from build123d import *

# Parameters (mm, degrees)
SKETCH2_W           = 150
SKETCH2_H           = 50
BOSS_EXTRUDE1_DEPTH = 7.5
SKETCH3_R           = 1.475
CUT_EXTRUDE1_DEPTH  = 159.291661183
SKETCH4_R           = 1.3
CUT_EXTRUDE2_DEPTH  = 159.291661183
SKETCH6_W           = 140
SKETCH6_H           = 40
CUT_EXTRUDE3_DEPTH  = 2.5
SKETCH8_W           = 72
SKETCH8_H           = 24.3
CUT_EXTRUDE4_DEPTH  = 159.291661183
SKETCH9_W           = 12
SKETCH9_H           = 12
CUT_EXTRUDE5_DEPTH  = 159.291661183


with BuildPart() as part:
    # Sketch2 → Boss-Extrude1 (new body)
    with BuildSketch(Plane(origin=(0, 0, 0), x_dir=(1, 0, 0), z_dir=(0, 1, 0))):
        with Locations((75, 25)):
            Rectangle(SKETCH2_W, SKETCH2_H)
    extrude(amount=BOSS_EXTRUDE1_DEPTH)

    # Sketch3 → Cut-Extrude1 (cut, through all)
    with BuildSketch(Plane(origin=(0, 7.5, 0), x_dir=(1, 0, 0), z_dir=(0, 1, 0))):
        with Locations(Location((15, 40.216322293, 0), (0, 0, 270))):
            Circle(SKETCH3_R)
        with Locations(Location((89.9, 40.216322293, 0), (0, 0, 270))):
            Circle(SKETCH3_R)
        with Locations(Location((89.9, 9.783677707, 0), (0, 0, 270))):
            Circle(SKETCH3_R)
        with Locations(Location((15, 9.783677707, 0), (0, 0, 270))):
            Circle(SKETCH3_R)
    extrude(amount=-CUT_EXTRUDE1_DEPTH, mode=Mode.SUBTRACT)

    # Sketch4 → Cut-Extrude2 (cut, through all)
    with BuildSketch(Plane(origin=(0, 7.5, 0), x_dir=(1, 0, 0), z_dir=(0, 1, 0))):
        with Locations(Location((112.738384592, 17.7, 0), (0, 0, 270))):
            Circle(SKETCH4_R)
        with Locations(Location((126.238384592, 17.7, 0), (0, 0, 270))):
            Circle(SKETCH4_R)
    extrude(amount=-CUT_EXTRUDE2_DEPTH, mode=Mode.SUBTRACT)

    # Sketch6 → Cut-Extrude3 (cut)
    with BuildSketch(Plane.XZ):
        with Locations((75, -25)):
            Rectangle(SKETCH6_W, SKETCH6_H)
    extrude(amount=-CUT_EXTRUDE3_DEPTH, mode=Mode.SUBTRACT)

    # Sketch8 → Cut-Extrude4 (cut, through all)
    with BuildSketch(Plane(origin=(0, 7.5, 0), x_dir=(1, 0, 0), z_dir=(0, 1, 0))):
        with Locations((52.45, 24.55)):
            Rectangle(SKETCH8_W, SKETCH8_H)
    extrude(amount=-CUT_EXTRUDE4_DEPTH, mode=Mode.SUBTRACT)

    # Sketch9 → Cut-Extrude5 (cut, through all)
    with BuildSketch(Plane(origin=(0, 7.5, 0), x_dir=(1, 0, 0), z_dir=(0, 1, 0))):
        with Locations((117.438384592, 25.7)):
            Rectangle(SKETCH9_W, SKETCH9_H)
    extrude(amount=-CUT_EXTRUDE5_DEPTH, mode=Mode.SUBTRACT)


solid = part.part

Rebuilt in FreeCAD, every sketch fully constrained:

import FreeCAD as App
import Part
import Sketcher

V = App.Vector
Q = App.Units.Quantity

doc = App.newDocument("Part")
body = doc.addObject("PartDesign::Body", "Body")

# Sketch on XZ plane
sketch1 = doc.addObject("Sketcher::SketchObject", "Sketch")
body.addObject(sketch1)
sketch1.AttachmentSupport = (doc.XZ_Plane, [""])
sketch1.MapMode = "FlatFace"
sketch1.addGeometry(Part.LineSegment(V(0, -50, 0), V(0, 0, 0)), False)
sketch1.addGeometry(Part.LineSegment(V(0, 0, 0), V(150, 0, 0)), False)
sketch1.addGeometry(Part.LineSegment(V(150, 0, 0), V(150, -50, 0)), False)
sketch1.addGeometry(Part.LineSegment(V(150, -50, 0), V(0, -50, 0)), False)
sketch1.addConstraint(Sketcher.Constraint("Coincident", 0, 2, 1, 1))
sketch1.addConstraint(Sketcher.Constraint("Coincident", 1, 2, 2, 1))
sketch1.addConstraint(Sketcher.Constraint("Coincident", 2, 2, 3, 1))
sketch1.addConstraint(Sketcher.Constraint("Coincident", 3, 2, 0, 1))
sketch1.addConstraint(Sketcher.Constraint("Vertical", 0))
sketch1.addConstraint(Sketcher.Constraint("Horizontal", 1))
sketch1.addConstraint(Sketcher.Constraint("Vertical", 2))
sketch1.addConstraint(Sketcher.Constraint("Horizontal", 3))
sketch1.addConstraint(Sketcher.Constraint("Coincident", 0, 2, -1, 1))
sketch1.addConstraint(Sketcher.Constraint("DistanceX", 1, 1, 1, 2, Q("150 mm")))
sketch1.addConstraint(Sketcher.Constraint("DistanceY", 0, 1, 0, 2, Q("50 mm")))
pad1 = doc.addObject("PartDesign::Pad", "Pad")
body.addObject(pad1)
pad1.Profile = sketch1
pad1.Length = 7.5
pad1.Reversed = True

# Sketch on XZ plane
sketch2 = doc.addObject("Sketcher::SketchObject", "Sketch001")
body.addObject(sketch2)
sketch2.AttachmentSupport = (doc.XZ_Plane, [""])
sketch2.MapMode = "FlatFace"
sketch2.AttachmentOffset = App.Placement(V(0, 0, -7.5), App.Rotation())
sketch2.addGeometry(Part.Circle(V(15, -40.2, 0), V(0, 0, 1), 1.5), False)
sketch2.addGeometry(Part.Circle(V(89.9, -40.2, 0), V(0, 0, 1), 1.5), False)
sketch2.addGeometry(Part.Circle(V(89.9, -9.8, 0), V(0, 0, 1), 1.5), False)
sketch2.addGeometry(Part.Circle(V(15, -9.8, 0), V(0, 0, 1), 1.5), False)
sketch2.addConstraint(Sketcher.Constraint("Equal", 0, 1))
sketch2.addConstraint(Sketcher.Constraint("Equal", 1, 2))
sketch2.addConstraint(Sketcher.Constraint("Equal", 2, 3))
sketch2.addConstraint(Sketcher.Constraint("Horizontal", 0, 3, 1, 3))
sketch2.addConstraint(Sketcher.Constraint("Horizontal", 2, 3, 3, 3))
sketch2.addConstraint(Sketcher.Constraint("Vertical", 1, 3, 2, 3))
sketch2.addConstraint(Sketcher.Constraint("Vertical", 0, 3, 3, 3))
sketch2.addConstraint(Sketcher.Constraint("Diameter", 0, Q("2.95 mm")))
sketch2.addConstraint(Sketcher.Constraint("DistanceX", -1, 1, 0, 3, Q("15 mm")))
sketch2.addConstraint(Sketcher.Constraint("DistanceX", -1, 1, 1, 3, Q("89.9 mm")))
sketch2.addConstraint(Sketcher.Constraint("DistanceY", 0, 3, -1, 1, Q("40.216322 mm")))
sketch2.addConstraint(Sketcher.Constraint("DistanceY", 2, 3, -1, 1, Q("9.783678 mm")))
pocket1 = doc.addObject("PartDesign::Pocket", "Pocket")
body.addObject(pocket1)
pocket1.Profile = sketch2
pocket1.Type = "ThroughAll"
pocket1.Reversed = True

# Sketch on XZ plane
sketch3 = doc.addObject("Sketcher::SketchObject", "Sketch002")
body.addObject(sketch3)
sketch3.AttachmentSupport = (doc.XZ_Plane, [""])
sketch3.MapMode = "FlatFace"
sketch3.AttachmentOffset = App.Placement(V(0, 0, -7.5), App.Rotation())
sketch3.addGeometry(Part.Circle(V(112.7, -17.7, 0), V(0, 0, 1), 1.3), False)
sketch3.addGeometry(Part.Circle(V(126.2, -17.7, 0), V(0, 0, 1), 1.3), False)
sketch3.addConstraint(Sketcher.Constraint("Equal", 0, 1))
sketch3.addConstraint(Sketcher.Constraint("Horizontal", 0, 3, 1, 3))
sketch3.addConstraint(Sketcher.Constraint("Diameter", 0, Q("2.6 mm")))
sketch3.addConstraint(Sketcher.Constraint("DistanceY", 0, 3, -1, 1, Q("17.7 mm")))
sketch3.addConstraint(Sketcher.Constraint("DistanceX", 0, 3, 1, 3, Q("13.5 mm")))
sketch3.addConstraint(Sketcher.Constraint("DistanceX", -1, 1, 0, 3, Q("112.738385 mm")))
pocket2 = doc.addObject("PartDesign::Pocket", "Pocket001")
body.addObject(pocket2)
pocket2.Profile = sketch3
pocket2.Type = "ThroughAll"
pocket2.Reversed = True

# Sketch on XZ plane
sketch4 = doc.addObject("Sketcher::SketchObject", "Sketch003")
body.addObject(sketch4)
sketch4.AttachmentSupport = (doc.XZ_Plane, [""])
sketch4.MapMode = "FlatFace"
sketch4.addGeometry(Part.LineSegment(V(5, -5, 0), V(5, -45, 0)), False)
sketch4.addGeometry(Part.LineSegment(V(5, -45, 0), V(145, -45, 0)), False)
sketch4.addGeometry(Part.LineSegment(V(145, -45, 0), V(145, -5, 0)), False)
sketch4.addGeometry(Part.LineSegment(V(145, -5, 0), V(5, -5, 0)), False)
sketch4.addConstraint(Sketcher.Constraint("Coincident", 0, 2, 1, 1))
sketch4.addConstraint(Sketcher.Constraint("Coincident", 1, 2, 2, 1))
sketch4.addConstraint(Sketcher.Constraint("Coincident", 2, 2, 3, 1))
sketch4.addConstraint(Sketcher.Constraint("Coincident", 3, 2, 0, 1))
sketch4.addConstraint(Sketcher.Constraint("Vertical", 0))
sketch4.addConstraint(Sketcher.Constraint("Horizontal", 1))
sketch4.addConstraint(Sketcher.Constraint("Vertical", 2))
sketch4.addConstraint(Sketcher.Constraint("Horizontal", 3))
sketch4.addConstraint(Sketcher.Constraint("DistanceX", 1, 1, 1, 2, Q("140 mm")))
sketch4.addConstraint(Sketcher.Constraint("DistanceY", 0, 2, 0, 1, Q("40 mm")))
sketch4.addConstraint(Sketcher.Constraint("DistanceX", -1, 1, 0, 2, Q("5 mm")))
sketch4.addConstraint(Sketcher.Constraint("DistanceY", 0, 2, -1, 1, Q("45 mm")))
pocket3 = doc.addObject("PartDesign::Pocket", "Pocket002")
body.addObject(pocket3)
pocket3.Profile = sketch4
pocket3.Length = 2.5

# Sketch on XZ plane
sketch5 = doc.addObject("Sketcher::SketchObject", "Sketch004")
body.addObject(sketch5)
sketch5.AttachmentSupport = (doc.XZ_Plane, [""])
sketch5.MapMode = "FlatFace"
sketch5.AttachmentOffset = App.Placement(V(0, 0, -7.5), App.Rotation())
sketch5.addGeometry(Part.LineSegment(V(16, -37, 0), V(16, -12, 0)), False)
sketch5.addGeometry(Part.LineSegment(V(16, -12, 0), V(88, -12, 0)), False)
sketch5.addGeometry(Part.LineSegment(V(88, -12, 0), V(88, -37, 0)), False)
sketch5.addGeometry(Part.LineSegment(V(88, -37, 0), V(16, -37, 0)), False)
sketch5.addConstraint(Sketcher.Constraint("Coincident", 0, 2, 1, 1))
sketch5.addConstraint(Sketcher.Constraint("Coincident", 1, 2, 2, 1))
sketch5.addConstraint(Sketcher.Constraint("Coincident", 2, 2, 3, 1))
sketch5.addConstraint(Sketcher.Constraint("Coincident", 3, 2, 0, 1))
sketch5.addConstraint(Sketcher.Constraint("Vertical", 0))
sketch5.addConstraint(Sketcher.Constraint("Horizontal", 1))
sketch5.addConstraint(Sketcher.Constraint("Vertical", 2))
sketch5.addConstraint(Sketcher.Constraint("Horizontal", 3))
sketch5.addConstraint(Sketcher.Constraint("DistanceX", 1, 1, 1, 2, Q("72 mm")))
sketch5.addConstraint(Sketcher.Constraint("DistanceY", 0, 1, 0, 2, Q("24.3 mm")))
sketch5.addConstraint(Sketcher.Constraint("DistanceY", 0, 2, -1, 1, Q("12.4 mm")))
sketch5.addConstraint(Sketcher.Constraint("DistanceX", -1, 1, 0, 2, Q("16.45 mm")))
pocket4 = doc.addObject("PartDesign::Pocket", "Pocket003")
body.addObject(pocket4)
pocket4.Profile = sketch5
pocket4.Type = "ThroughAll"
pocket4.Reversed = True

# Sketch on XZ plane
sketch6 = doc.addObject("Sketcher::SketchObject", "Sketch005")
body.addObject(sketch6)
sketch6.AttachmentSupport = (doc.XZ_Plane, [""])
sketch6.MapMode = "FlatFace"
sketch6.AttachmentOffset = App.Placement(V(0, 0, -7.5), App.Rotation())
sketch6.addGeometry(Part.LineSegment(V(111, -32, 0), V(111, -20, 0)), False)
sketch6.addGeometry(Part.LineSegment(V(111, -20, 0), V(123, -20, 0)), False)
sketch6.addGeometry(Part.LineSegment(V(123, -20, 0), V(123, -32, 0)), False)
sketch6.addGeometry(Part.LineSegment(V(123, -32, 0), V(111, -32, 0)), False)
sketch6.addConstraint(Sketcher.Constraint("Coincident", 0, 2, 1, 1))
sketch6.addConstraint(Sketcher.Constraint("Coincident", 1, 2, 2, 1))
sketch6.addConstraint(Sketcher.Constraint("Coincident", 2, 2, 3, 1))
sketch6.addConstraint(Sketcher.Constraint("Coincident", 3, 2, 0, 1))
sketch6.addConstraint(Sketcher.Constraint("Vertical", 0))
sketch6.addConstraint(Sketcher.Constraint("Horizontal", 1))
sketch6.addConstraint(Sketcher.Constraint("Vertical", 2))
sketch6.addConstraint(Sketcher.Constraint("Horizontal", 3))
sketch6.addConstraint(Sketcher.Constraint("Equal", 3, 0))
sketch6.addConstraint(Sketcher.Constraint("DistanceX", 1, 1, 1, 2, Q("12 mm")))
sketch6.addConstraint(Sketcher.Constraint("DistanceY", 0, 2, -1, 1, Q("19.7 mm")))
sketch6.addConstraint(Sketcher.Constraint("DistanceX", -1, 1, 0, 2, Q("111.438385 mm")))
pocket5 = doc.addObject("PartDesign::Pocket", "Pocket004")
body.addObject(pocket5)
pocket5.Profile = sketch6
pocket5.Type = "ThroughAll"
pocket5.Reversed = True

doc.recompute()
